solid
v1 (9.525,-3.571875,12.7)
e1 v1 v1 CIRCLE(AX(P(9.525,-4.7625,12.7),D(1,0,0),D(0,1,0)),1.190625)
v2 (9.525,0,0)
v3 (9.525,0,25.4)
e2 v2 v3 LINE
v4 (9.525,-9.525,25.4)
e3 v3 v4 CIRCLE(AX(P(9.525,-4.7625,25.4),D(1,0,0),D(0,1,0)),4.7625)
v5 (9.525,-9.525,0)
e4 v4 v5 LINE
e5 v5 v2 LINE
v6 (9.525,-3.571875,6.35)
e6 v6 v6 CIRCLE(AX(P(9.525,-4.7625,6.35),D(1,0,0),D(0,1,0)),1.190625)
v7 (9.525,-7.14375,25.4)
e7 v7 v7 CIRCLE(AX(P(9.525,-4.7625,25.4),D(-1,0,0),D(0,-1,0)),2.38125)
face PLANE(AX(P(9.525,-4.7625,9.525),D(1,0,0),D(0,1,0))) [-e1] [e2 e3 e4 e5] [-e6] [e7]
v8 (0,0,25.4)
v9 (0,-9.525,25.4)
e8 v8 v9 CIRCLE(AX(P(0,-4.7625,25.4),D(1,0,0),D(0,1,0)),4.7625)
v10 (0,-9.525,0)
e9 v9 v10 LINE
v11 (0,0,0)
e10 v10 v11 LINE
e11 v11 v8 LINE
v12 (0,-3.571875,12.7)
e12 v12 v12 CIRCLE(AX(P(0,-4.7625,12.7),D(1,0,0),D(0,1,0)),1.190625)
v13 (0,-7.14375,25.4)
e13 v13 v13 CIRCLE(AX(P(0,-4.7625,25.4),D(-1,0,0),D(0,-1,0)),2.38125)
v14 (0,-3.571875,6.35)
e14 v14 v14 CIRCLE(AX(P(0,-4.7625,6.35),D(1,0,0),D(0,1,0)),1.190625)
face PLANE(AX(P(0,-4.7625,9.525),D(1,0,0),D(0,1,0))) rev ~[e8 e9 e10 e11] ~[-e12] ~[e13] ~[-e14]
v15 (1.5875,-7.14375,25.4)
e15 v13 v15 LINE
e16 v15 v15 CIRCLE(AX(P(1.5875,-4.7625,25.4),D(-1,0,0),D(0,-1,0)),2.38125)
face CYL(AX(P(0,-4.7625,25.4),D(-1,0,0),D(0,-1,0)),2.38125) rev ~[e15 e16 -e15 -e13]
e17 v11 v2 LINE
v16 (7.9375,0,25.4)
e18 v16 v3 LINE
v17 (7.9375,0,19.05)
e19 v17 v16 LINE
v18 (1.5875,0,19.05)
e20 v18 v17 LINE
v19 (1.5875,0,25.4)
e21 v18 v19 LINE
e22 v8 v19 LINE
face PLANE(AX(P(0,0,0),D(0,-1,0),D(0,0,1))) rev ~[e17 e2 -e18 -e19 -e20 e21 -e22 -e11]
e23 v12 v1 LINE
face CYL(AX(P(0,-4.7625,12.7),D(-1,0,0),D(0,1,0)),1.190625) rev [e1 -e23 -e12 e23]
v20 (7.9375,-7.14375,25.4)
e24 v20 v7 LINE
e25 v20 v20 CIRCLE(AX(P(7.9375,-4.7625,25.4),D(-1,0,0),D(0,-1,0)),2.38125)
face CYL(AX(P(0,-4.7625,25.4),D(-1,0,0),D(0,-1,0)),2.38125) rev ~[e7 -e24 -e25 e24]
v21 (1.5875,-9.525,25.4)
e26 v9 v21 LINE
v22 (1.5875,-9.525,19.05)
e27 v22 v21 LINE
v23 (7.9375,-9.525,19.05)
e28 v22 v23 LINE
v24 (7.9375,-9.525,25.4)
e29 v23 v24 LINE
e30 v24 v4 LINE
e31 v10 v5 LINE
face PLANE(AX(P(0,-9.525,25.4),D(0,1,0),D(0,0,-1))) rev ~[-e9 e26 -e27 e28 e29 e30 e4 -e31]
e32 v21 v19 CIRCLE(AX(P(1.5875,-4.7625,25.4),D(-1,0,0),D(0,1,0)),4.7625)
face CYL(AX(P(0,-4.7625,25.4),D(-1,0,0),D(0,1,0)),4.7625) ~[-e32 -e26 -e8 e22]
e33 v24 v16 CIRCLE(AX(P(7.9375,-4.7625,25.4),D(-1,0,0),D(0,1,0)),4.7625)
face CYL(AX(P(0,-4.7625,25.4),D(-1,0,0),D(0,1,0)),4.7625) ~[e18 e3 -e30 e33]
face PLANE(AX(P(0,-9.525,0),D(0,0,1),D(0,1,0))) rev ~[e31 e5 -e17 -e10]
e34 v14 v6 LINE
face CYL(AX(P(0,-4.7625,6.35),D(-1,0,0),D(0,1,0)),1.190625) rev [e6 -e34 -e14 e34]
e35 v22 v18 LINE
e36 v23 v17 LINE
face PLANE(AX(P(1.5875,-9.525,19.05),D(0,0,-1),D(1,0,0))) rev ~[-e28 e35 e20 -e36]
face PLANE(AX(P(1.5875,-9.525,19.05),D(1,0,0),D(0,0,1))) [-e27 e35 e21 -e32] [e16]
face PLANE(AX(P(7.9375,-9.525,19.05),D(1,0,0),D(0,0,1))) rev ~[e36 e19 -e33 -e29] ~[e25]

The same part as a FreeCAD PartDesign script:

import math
import FreeCAD as App
import Part
import Sketcher
Q = App.Units.Quantity

doc = App.newDocument("Part")
body = doc.addObject("PartDesign::Body", "Body")

sketch1 = body.newObject("Sketcher::SketchObject", "Sketch")
sketch1.AttachmentSupport = (doc.getObject("YZ_Plane"), [""])
sketch1.MapMode = "FlatFace"
sketch1.addGeometry(Part.LineSegment(App.Vector(-9.525, 0, 0), App.Vector(0, 0, 0)), False)
sketch1.addGeometry(Part.LineSegment(App.Vector(0, 0, 0), App.Vector(0, 25.4, 0)), False)
sketch1.addGeometry(Part.ArcOfCircle(Part.Circle(App.Vector(-4.7625, 25.4, 0), App.Vector(0, 0, 1), 4.7625), math.radians(0), math.radians(180)), False)
sketch1.addGeometry(Part.LineSegment(App.Vector(-9.525, 25.4, 0), App.Vector(-9.525, 0, 0)), False)
sketch1.addGeometry(Part.Circle(App.Vector(-4.7625, 25.4, 0), App.Vector(0, 0, 1), 2.38125), False)
sketch1.addGeometry(Part.Circle(App.Vector(-4.7625, 6.35, 0), App.Vector(0, 0, 1), 1.190625), False)
sketch1.addGeometry(Part.Circle(App.Vector(-4.7625, 12.7, 0), App.Vector(0, 0, 1), 1.190625), False)
sketch1.addConstraint(Sketcher.Constraint("Coincident", 0, 2, 1, 1))
sketch1.addConstraint(Sketcher.Constraint("Tangent", 1, 2, 2, 1))
sketch1.addConstraint(Sketcher.Constraint("Tangent", 2, 2, 3, 1))
sketch1.addConstraint(Sketcher.Constraint("Coincident", 3, 2, 0, 1))
sketch1.addConstraint(Sketcher.Constraint("Horizontal", 0))
sketch1.addConstraint(Sketcher.Constraint("Vertical", 1))
sketch1.addConstraint(Sketcher.Constraint("Vertical", 3))
sketch1.addConstraint(Sketcher.Constraint("Coincident", 0, 2, -1, 1))
sketch1.addConstraint(Sketcher.Constraint("Coincident", 4, 3, 2, 3))
sketch1.addConstraint(Sketcher.Constraint("Equal", 5, 6))
sketch1.addConstraint(Sketcher.Constraint("Vertical", 4, 3, 5, 3))
sketch1.addConstraint(Sketcher.Constraint("Vertical", 5, 3, 6, 3))
sketch1.addConstraint(Sketcher.Constraint("DistanceY", 1, 1, 1, 2, Q("1 in")))
sketch1.addConstraint(Sketcher.Constraint("Diameter", 4, Q("0.1875 in")))
sketch1.addConstraint(Sketcher.Constraint("Diameter", 5, Q("0.09375 in")))
sketch1.addConstraint(Sketcher.Constraint("Radius", 2, Q("0.1875 in")))
sketch1.addConstraint(Sketcher.Constraint("DistanceY", -1, 1, 6, 3, Q("0.5 in")))
sketch1.addConstraint(Sketcher.Constraint("DistanceY", -1, 1, 5, 3, Q("0.25 in")))
pad1 = body.newObject("PartDesign::Pad", "Pad")
pad1.Profile = sketch1
pad1.Length = Q("0.375 in")

sketch2 = body.newObject("Sketcher::SketchObject", "Sketch001")
sketch2.AttachmentSupport = (doc.getObject("XZ_Plane"), [""])
sketch2.MapMode = "FlatFace"
sketch2.AttachmentOffset = App.Placement(App.Vector(0, 0, 0.375 * 25.4), App.Rotation())
sketch2.addGeometry(Part.LineSegment(App.Vector(1.5875, 31.75, 0), App.Vector(1.5875, 19.05, 0)), False)
sketch2.addGeometry(Part.LineSegment(App.Vector(1.5875, 19.05, 0), App.Vector(7.9375, 19.05, 0)), False)
sketch2.addGeometry(Part.LineSegment(App.Vector(7.9375, 19.05, 0), App.Vector(7.9375, 31.75, 0)), False)
sketch2.addGeometry(Part.LineSegment(App.Vector(7.9375, 31.75, 0), App.Vector(1.5875, 31.75, 0)), False)
sketch2.addConstraint(Sketcher.Constraint("Coincident", 0, 2, 1, 1))
sketch2.addConstraint(Sketcher.Constraint("Coincident", 1, 2, 2, 1))
sketch2.addConstraint(Sketcher.Constraint("Coincident", 2, 2, 3, 1))
sketch2.addConstraint(Sketcher.Constraint("Coincident", 3, 2, 0, 1))
sketch2.addConstraint(Sketcher.Constraint("Vertical", 0))
sketch2.addConstraint(Sketcher.Constraint("Horizontal", 1))
sketch2.addConstraint(Sketcher.Constraint("Vertical", 2))
sketch2.addConstraint(Sketcher.Constraint("Horizontal", 3))
sketch2.addConstraint(Sketcher.Constraint("DistanceY", 0, 2, 0, 1, Q("0.5 in")))
sketch2.addConstraint(Sketcher.Constraint("DistanceX", 1, 1, 1, 2, Q("0.25 in")))
sketch2.addConstraint(Sketcher.Constraint("DistanceY", -1, 1, 0, 2, Q("0.75 in")))
sketch2.addConstraint(Sketcher.Constraint("DistanceX", -1, 1, 0, 2, Q("0.0625 in")))
pocket1 = body.newObject("PartDesign::Pocket", "Pocket")
pocket1.Profile = sketch2
pocket1.Type = "ThroughAll"

doc.recompute()
